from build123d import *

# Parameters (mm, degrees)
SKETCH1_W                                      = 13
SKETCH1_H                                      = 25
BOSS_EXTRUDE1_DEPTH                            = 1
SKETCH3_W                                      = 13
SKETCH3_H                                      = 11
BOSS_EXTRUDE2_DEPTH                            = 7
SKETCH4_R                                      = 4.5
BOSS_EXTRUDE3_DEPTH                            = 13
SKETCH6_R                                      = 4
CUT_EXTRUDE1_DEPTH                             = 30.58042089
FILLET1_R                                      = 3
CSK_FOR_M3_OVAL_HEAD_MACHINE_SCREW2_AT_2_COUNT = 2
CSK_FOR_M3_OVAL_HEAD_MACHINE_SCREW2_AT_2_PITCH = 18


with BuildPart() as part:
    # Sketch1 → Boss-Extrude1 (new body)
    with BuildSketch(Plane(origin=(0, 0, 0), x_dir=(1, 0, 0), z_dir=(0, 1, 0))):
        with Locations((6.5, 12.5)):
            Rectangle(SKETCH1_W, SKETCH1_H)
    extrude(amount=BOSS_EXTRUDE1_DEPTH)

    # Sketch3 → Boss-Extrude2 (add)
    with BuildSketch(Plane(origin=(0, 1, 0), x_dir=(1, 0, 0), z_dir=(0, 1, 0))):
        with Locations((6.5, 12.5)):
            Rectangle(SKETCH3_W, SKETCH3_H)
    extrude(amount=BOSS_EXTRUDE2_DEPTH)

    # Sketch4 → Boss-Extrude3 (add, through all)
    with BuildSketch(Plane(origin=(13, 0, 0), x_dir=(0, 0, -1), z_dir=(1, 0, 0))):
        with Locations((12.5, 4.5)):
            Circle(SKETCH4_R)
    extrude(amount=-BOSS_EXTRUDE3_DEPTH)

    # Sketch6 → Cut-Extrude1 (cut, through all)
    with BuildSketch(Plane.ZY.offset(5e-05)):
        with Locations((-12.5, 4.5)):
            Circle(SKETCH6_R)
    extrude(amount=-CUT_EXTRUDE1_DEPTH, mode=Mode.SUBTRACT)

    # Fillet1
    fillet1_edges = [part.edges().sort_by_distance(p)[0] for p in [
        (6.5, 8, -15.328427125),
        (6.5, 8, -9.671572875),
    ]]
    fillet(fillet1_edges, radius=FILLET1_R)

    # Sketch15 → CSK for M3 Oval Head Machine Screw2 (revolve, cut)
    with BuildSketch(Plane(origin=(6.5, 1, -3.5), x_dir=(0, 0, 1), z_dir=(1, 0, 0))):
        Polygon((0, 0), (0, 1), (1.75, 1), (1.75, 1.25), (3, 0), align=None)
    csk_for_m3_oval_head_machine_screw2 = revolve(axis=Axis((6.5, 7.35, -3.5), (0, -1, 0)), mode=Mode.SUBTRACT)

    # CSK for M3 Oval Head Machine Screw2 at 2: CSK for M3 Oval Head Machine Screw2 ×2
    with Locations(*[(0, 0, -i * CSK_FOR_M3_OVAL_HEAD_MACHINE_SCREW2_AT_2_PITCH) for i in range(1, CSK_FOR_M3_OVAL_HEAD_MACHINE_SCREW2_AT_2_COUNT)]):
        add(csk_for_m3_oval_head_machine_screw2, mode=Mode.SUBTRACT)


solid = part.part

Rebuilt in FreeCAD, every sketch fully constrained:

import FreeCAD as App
import Part
import Sketcher
Q = App.Units.Quantity


def edges_at(feature, points):
    """Names of the edges that pass closest to the given points."""
    edges = feature.Shape.Edges
    near = lambda p: min(range(len(edges)), key=lambda i: edges[i].distToShape(Part.Vertex(*p))[0])
    return sorted({f"Edge{near(p) + 1}" for p in points})

doc = App.newDocument("Part")
body = doc.addObject("PartDesign::Body", "Body")

# Sketch on XZ plane
sketch1 = body.newObject("Sketcher::SketchObject", "Sketch")
sketch1.AttachmentSupport = (doc.getObject("XZ_Plane"), [""])
sketch1.MapMode = "FlatFace"
sketch1.addGeometry(Part.LineSegment(App.Vector(0, -25, 0), App.Vector(0, 0, 0)), False)
sketch1.addGeometry(Part.LineSegment(App.Vector(0, 0, 0), App.Vector(13, 0, 0)), False)
sketch1.addGeometry(Part.LineSegment(App.Vector(13, 0, 0), App.Vector(13, -25, 0)), False)
sketch1.addGeometry(Part.LineSegment(App.Vector(13, -25, 0), App.Vector(0, -25, 0)), False)
sketch1.addConstraint(Sketcher.Constraint("Coincident", 0, 2, 1, 1))
sketch1.addConstraint(Sketcher.Constraint("Coincident", 1, 2, 2, 1))
sketch1.addConstraint(Sketcher.Constraint("Coincident", 2, 2, 3, 1))
sketch1.addConstraint(Sketcher.Constraint("Coincident", 3, 2, 0, 1))
sketch1.addConstraint(Sketcher.Constraint("Vertical", 0))
sketch1.addConstraint(Sketcher.Constraint("Horizontal", 1))
sketch1.addConstraint(Sketcher.Constraint("Vertical", 2))
sketch1.addConstraint(Sketcher.Constraint("Horizontal", 3))
sketch1.addConstraint(Sketcher.Constraint("Coincident", 0, 2, -1, 1))
sketch1.addConstraint(Sketcher.Constraint("DistanceX", 1, 1, 1, 2, Q("13 mm")))
sketch1.addConstraint(Sketcher.Constraint("DistanceY", 0, 1, 0, 2, Q("25 mm")))
pad1 = body.newObject("PartDesign::Pad", "Pad")
pad1.Profile = sketch1
pad1.Length = 1
pad1.Reversed = True

# Sketch on XZ plane
sketch2 = body.newObject("Sketcher::SketchObject", "Sketch001")
sketch2.AttachmentSupport = (doc.getObject("XZ_Plane"), [""])
sketch2.MapMode = "FlatFace"
sketch2.AttachmentOffset = App.Placement(App.Vector(0, 0, -1), App.Rotation())
sketch2.addGeometry(Part.LineSegment(App.Vector(0, -18, 0), App.Vector(0, -7, 0)), False)
sketch2.addGeometry(Part.LineSegment(App.Vector(0, -7, 0), App.Vector(13, -7, 0)), False)
sketch2.addGeometry(Part.LineSegment(App.Vector(13, -7, 0), App.Vector(13, -18, 0)), False)
sketch2.addGeometry(Part.LineSegment(App.Vector(13, -18, 0), App.Vector(0, -18, 0)), False)
sketch2.addConstraint(Sketcher.Constraint("Coincident", 0, 2, 1, 1))
sketch2.addConstraint(Sketcher.Constraint("Coincident", 1, 2, 2, 1))
sketch2.addConstraint(Sketcher.Constraint("Coincident", 2, 2, 3, 1))
sketch2.addConstraint(Sketcher.Constraint("Coincident", 3, 2, 0, 1))
sketch2.addConstraint(Sketcher.Constraint("Vertical", 0))
sketch2.addConstraint(Sketcher.Constraint("Horizontal", 1))
sketch2.addConstraint(Sketcher.Constraint("Vertical", 2))
sketch2.addConstraint(Sketcher.Constraint("Horizontal", 3))
sketch2.addConstraint(Sketcher.Constraint("PointOnObject", 0, 2, -2))
sketch2.addConstraint(Sketcher.Constraint("DistanceX", 1, 1, 1, 2, Q("13 mm")))
sketch2.addConstraint(Sketcher.Constraint("DistanceY", 0, 1, 0, 2, Q("11 mm")))
sketch2.addConstraint(Sketcher.Constraint("DistanceY", 0, 2, -1, 1, Q("7 mm")))
pad2 = body.newObject("PartDesign::Pad", "Pad001")
pad2.Profile = sketch2
pad2.Length = 7
pad2.Reversed = True

# Sketch on YZ plane
sketch3 = body.newObject("Sketcher::SketchObject", "Sketch002")
sketch3.AttachmentSupport = (doc.getObject("YZ_Plane"), [""])
sketch3.MapMode = "FlatFace"
sketch3.AttachmentOffset = App.Placement(App.Vector(0, 0, 13), App.Rotation())
sketch3.addGeometry(Part.Circle(App.Vector(4.5, -12.5, 0), App.Vector(0, 0, 1), 4.5), False)
sketch3.addConstraint(Sketcher.Constraint("Diameter", 0, Q("9 mm")))
sketch3.addConstraint(Sketcher.Constraint("DistanceX", -1, 1, 0, 3, Q("4.5 mm")))
sketch3.addConstraint(Sketcher.Constraint("DistanceY", 0, 3, -1, 1, Q("12.5 mm")))
pad3 = body.newObject("PartDesign::Pad", "Pad002")
pad3.Profile = sketch3
pad3.Type = "UpToLast"
pad3.Reversed = True

# Sketch on YZ plane
sketch4 = body.newObject("Sketcher::SketchObject", "Sketch003")
sketch4.AttachmentSupport = (doc.getObject("YZ_Plane"), [""])
sketch4.MapMode = "FlatFace"
sketch4.AttachmentOffset = App.Placement(App.Vector(0, 0, -0.00005), App.Rotation())
sketch4.addGeometry(Part.Circle(App.Vector(4.5, -12.5, 0), App.Vector(0, 0, 1), 4), False)
sketch4.addConstraint(Sketcher.Constraint("Diameter", 0, Q("8 mm")))
sketch4.addConstraint(Sketcher.Constraint("DistanceX", -1, 1, 0, 3, Q("4.5 mm")))
sketch4.addConstraint(Sketcher.Constraint("DistanceY", 0, 3, -1, 1, Q("12.5 mm")))
pocket1 = body.newObject("PartDesign::Pocket", "Pocket")
pocket1.Profile = sketch4
pocket1.Type = "ThroughAll"
pocket1.Reversed = True
doc.recompute()

fillet = body.newObject("PartDesign::Fillet", "Fillet")
fillet.Base = (pocket1, edges_at(pocket1, [(6.5, 8, -15.328), (6.5, 8, -9.672)]))
fillet.Radius = 3

# Sketch on YZ plane
sketch5 = body.newObject("Sketcher::SketchObject", "Sketch004")
sketch5.AttachmentSupport = (doc.getObject("YZ_Plane"), [""])
sketch5.MapMode = "FlatFace"
sketch5.AttachmentOffset = App.Placement(App.Vector(0, 0, 6.5), App.Rotation())
sketch5.addGeometry(Part.LineSegment(App.Vector(0, -3.5, 0), App.Vector(1, -3.5, 0)), False)
sketch5.addGeometry(Part.LineSegment(App.Vector(1, -3.5, 0), App.Vector(1, -0.5, 0)), False)
sketch5.addGeometry(Part.LineSegment(App.Vector(1, -0.5, 0), App.Vector(-0.25, -1.75, 0)), False)
sketch5.addGeometry(Part.LineSegment(App.Vector(-0.25, -1.75, 0), App.Vector(0, -1.75, 0)), False)
sketch5.addGeometry(Part.LineSegment(App.Vector(0, -1.75, 0), App.Vector(0, -3.5, 0)), False)
sketch5.addGeometry(Part.LineSegment(App.Vector(1, -3.5, 0), App.Vector(-0.25, -3.5, 0)), True)  # axis
sketch5.addConstraint(Sketcher.Constraint("Coincident", 0, 2, 1, 1))
sketch5.addConstraint(Sketcher.Constraint("Coincident", 1, 2, 2, 1))
sketch5.addConstraint(Sketcher.Constraint("Coincident", 2, 2, 3, 1))
sketch5.addConstraint(Sketcher.Constraint("Coincident", 3, 2, 4, 1))
sketch5.addConstraint(Sketcher.Constraint("Coincident", 4, 2, 0, 1))
sketch5.addConstraint(Sketcher.Constraint("Horizontal", 0))
sketch5.addConstraint(Sketcher.Constraint("Vertical", 1))
sketch5.addConstraint(Sketcher.Constraint("Horizontal", 3))
sketch5.addConstraint(Sketcher.Constraint("Vertical", 4))
sketch5.addConstraint(Sketcher.Constraint("Horizontal", 5))
sketch5.addConstraint(Sketcher.Constraint("Coincident", 5, 1, 0, 2))
sketch5.addConstraint(Sketcher.Constraint("PointOnObject", 3, 2, -2))
sketch5.addConstraint(Sketcher.Constraint("Vertical", 2, 2, 5, 2))
sketch5.addConstraint(Sketcher.Constraint("DistanceX", 0, 1, 0, 2, Q("1 mm")))
sketch5.addConstraint(Sketcher.Constraint("DistanceY", 1, 1, 1, 2, Q("3 mm")))
sketch5.addConstraint(Sketcher.Constraint("Angle", 2, Q("-135 deg")))
sketch5.addConstraint(Sketcher.Constraint("DistanceX", 3, 1, 3, 2, Q("0.25 mm")))
sketch5.addConstraint(Sketcher.Constraint("DistanceY", 0, 2, -1, 1, Q("3.5 mm")))
groove = body.newObject("PartDesign::Groove", "Groove")
groove.Profile = sketch5
groove.ReferenceAxis = (sketch5, ["Axis0"])
groove.Angle = 360
doc.recompute()

linearpattern = body.newObject("PartDesign::LinearPattern", "LinearPattern")
linearpattern.Originals = [groove]
linearpattern.Direction = (doc.getObject("Z_Axis"), [""])
linearpattern.Mode = "offset"
linearpattern.Offset = 18
linearpattern.Occurrences = 2
linearpattern.Reversed = True
body.Tip = linearpattern

doc.recompute()
